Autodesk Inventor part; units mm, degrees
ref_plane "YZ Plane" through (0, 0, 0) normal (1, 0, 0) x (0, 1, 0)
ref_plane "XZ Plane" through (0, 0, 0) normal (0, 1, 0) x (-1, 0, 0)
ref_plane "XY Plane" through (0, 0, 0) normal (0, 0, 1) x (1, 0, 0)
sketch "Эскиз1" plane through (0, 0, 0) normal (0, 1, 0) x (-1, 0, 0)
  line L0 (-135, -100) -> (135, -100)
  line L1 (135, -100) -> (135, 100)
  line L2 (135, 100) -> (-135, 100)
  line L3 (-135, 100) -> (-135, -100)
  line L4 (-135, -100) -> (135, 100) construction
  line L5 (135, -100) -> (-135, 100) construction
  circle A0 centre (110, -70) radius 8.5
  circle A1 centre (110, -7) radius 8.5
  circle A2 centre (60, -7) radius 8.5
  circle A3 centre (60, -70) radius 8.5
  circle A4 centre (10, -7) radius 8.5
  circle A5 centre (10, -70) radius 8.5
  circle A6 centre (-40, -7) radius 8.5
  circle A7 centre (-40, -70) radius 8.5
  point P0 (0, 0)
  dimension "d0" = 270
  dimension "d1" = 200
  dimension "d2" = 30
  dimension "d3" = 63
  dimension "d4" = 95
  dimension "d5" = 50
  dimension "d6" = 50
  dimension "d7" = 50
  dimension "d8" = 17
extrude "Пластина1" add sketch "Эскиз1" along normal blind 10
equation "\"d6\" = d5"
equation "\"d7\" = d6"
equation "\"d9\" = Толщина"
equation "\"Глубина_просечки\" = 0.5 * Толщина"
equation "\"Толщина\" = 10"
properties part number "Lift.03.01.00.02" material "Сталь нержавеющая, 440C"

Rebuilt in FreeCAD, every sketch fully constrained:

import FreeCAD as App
import Part
import Sketcher
Q = App.Units.Quantity


def add_polygon(sketch, points):
    """Adds a closed chain of lines whose ends are joined by coincident constraints."""
    first, n = sketch.GeometryCount, len(points)
    for a, b in zip(points, points[1:] + points[:1]):
        sketch.addGeometry(Part.LineSegment(App.Vector(*a, 0), App.Vector(*b, 0)), False)
    for i in range(n):
        sketch.addConstraint(Sketcher.Constraint("Coincident", first + i, 2, first + (i + 1) % n, 1))

doc = App.newDocument("Part")
params = doc.addObject("Spreadsheet::Sheet", "Params")
for row, (alias, value) in enumerate([
    ("sketch1_diameter", "17 mm"),
    ("sketch1_width", "270 mm"),
    ("sketch1_height", "200 mm"),
    ("pad1_length", "10 mm"),
], start=1):
    params.set(f"A{row}", alias)
    params.set(f"B{row}", "=" + value)
    params.setAlias(f"B{row}", alias)

body = doc.addObject("PartDesign::Body", "Body")

# Sketch on XZ plane
sketch1 = body.newObject("Sketcher::SketchObject", "Sketch")
sketch1.AttachmentSupport = (doc.getObject("XZ_Plane"), [""])
sketch1.MapMode = "FlatFace"
add_polygon(sketch1, [(135, 100), (135, -100), (-135, -100), (-135, 100)])  # lines 0-3
sketch1.addGeometry(Part.Circle(App.Vector(40, -70, 0), App.Vector(0, 0, 1), 8), False)  # 4
sketch1.addGeometry(Part.Circle(App.Vector(40, -7, 0), App.Vector(0, 0, 1), 8), False)  # 5
sketch1.addGeometry(Part.Circle(App.Vector(-10, -70, 0), App.Vector(0, 0, 1), 8), False)  # 6
sketch1.addGeometry(Part.Circle(App.Vector(-60, -70, 0), App.Vector(0, 0, 1), 8), False)  # 7
sketch1.addGeometry(Part.Circle(App.Vector(-110, -70, 0), App.Vector(0, 0, 1), 8), False)  # 8
sketch1.addGeometry(Part.Circle(App.Vector(-10, -7, 0), App.Vector(0, 0, 1), 8), False)  # 9
sketch1.addGeometry(Part.Circle(App.Vector(-60, -7, 0), App.Vector(0, 0, 1), 8), False)  # 10
sketch1.addGeometry(Part.Circle(App.Vector(-110, -7, 0), App.Vector(0, 0, 1), 8), False)  # 11
sketch1.addConstraint([
    Sketcher.Constraint("Vertical", 0),
    Sketcher.Constraint("Horizontal", 1),
    Sketcher.Constraint("Vertical", 2),
    Sketcher.Constraint("Horizontal", 3),
    Sketcher.Constraint("Equal", 4, 5),
    Sketcher.Constraint("Equal", 5, 6),
    Sketcher.Constraint("Equal", 6, 7),
    Sketcher.Constraint("Equal", 7, 8),
    Sketcher.Constraint("Equal", 8, 9),
    Sketcher.Constraint("Equal", 9, 10),
    Sketcher.Constraint("Equal", 10, 11),
    Sketcher.Constraint("Symmetric", 0, 2, 2, 2, -1, 1),
    Sketcher.Constraint("Horizontal", 4, 3, 6, 3),
    Sketcher.Constraint("Horizontal", 6, 3, 7, 3),
    Sketcher.Constraint("Horizontal", 7, 3, 8, 3),
    Sketcher.Constraint("Horizontal", 5, 3, 9, 3),
    Sketcher.Constraint("Horizontal", 9, 3, 10, 3),
    Sketcher.Constraint("Horizontal", 10, 3, 11, 3),
    Sketcher.Constraint("Vertical", 4, 3, 5, 3),
    Sketcher.Constraint("Vertical", 6, 3, 9, 3),
    Sketcher.Constraint("Vertical", 7, 3, 10, 3),
    Sketcher.Constraint("Vertical", 8, 3, 11, 3),
    Sketcher.Constraint("Diameter", 4, Q("17 mm")),
    Sketcher.Constraint("DistanceX", 1, 2, 1, 1, Q("270 mm")),
    Sketcher.Constraint("DistanceY", 0, 2, 0, 1, Q("200 mm")),
    Sketcher.Constraint("DistanceY", 4, 3, 5, 3, Q("63 mm")),
    Sketcher.Constraint("DistanceX", 6, 3, 4, 3, Q("50 mm")),
    Sketcher.Constraint("DistanceX", 7, 3, 6, 3, Q("50 mm")),
    Sketcher.Constraint("DistanceX", 8, 3, 7, 3, Q("50 mm")),
    Sketcher.Constraint("DistanceX", 4, 3, 0, 2, Q("95 mm")),
    Sketcher.Constraint("DistanceY", 0, 2, 4, 3, Q("30 mm")),
])
sketch1.setExpression("Constraints[26]", "Params.sketch1_diameter")
sketch1.setExpression("Constraints[27]", "Params.sketch1_width")
sketch1.setExpression("Constraints[28]", "Params.sketch1_height")
pad1 = body.newObject("PartDesign::Pad", "Pad")
pad1.Profile = sketch1
pad1.setExpression("Length", "Params.pad1_length")
pad1.Reversed = True

doc.recompute()
